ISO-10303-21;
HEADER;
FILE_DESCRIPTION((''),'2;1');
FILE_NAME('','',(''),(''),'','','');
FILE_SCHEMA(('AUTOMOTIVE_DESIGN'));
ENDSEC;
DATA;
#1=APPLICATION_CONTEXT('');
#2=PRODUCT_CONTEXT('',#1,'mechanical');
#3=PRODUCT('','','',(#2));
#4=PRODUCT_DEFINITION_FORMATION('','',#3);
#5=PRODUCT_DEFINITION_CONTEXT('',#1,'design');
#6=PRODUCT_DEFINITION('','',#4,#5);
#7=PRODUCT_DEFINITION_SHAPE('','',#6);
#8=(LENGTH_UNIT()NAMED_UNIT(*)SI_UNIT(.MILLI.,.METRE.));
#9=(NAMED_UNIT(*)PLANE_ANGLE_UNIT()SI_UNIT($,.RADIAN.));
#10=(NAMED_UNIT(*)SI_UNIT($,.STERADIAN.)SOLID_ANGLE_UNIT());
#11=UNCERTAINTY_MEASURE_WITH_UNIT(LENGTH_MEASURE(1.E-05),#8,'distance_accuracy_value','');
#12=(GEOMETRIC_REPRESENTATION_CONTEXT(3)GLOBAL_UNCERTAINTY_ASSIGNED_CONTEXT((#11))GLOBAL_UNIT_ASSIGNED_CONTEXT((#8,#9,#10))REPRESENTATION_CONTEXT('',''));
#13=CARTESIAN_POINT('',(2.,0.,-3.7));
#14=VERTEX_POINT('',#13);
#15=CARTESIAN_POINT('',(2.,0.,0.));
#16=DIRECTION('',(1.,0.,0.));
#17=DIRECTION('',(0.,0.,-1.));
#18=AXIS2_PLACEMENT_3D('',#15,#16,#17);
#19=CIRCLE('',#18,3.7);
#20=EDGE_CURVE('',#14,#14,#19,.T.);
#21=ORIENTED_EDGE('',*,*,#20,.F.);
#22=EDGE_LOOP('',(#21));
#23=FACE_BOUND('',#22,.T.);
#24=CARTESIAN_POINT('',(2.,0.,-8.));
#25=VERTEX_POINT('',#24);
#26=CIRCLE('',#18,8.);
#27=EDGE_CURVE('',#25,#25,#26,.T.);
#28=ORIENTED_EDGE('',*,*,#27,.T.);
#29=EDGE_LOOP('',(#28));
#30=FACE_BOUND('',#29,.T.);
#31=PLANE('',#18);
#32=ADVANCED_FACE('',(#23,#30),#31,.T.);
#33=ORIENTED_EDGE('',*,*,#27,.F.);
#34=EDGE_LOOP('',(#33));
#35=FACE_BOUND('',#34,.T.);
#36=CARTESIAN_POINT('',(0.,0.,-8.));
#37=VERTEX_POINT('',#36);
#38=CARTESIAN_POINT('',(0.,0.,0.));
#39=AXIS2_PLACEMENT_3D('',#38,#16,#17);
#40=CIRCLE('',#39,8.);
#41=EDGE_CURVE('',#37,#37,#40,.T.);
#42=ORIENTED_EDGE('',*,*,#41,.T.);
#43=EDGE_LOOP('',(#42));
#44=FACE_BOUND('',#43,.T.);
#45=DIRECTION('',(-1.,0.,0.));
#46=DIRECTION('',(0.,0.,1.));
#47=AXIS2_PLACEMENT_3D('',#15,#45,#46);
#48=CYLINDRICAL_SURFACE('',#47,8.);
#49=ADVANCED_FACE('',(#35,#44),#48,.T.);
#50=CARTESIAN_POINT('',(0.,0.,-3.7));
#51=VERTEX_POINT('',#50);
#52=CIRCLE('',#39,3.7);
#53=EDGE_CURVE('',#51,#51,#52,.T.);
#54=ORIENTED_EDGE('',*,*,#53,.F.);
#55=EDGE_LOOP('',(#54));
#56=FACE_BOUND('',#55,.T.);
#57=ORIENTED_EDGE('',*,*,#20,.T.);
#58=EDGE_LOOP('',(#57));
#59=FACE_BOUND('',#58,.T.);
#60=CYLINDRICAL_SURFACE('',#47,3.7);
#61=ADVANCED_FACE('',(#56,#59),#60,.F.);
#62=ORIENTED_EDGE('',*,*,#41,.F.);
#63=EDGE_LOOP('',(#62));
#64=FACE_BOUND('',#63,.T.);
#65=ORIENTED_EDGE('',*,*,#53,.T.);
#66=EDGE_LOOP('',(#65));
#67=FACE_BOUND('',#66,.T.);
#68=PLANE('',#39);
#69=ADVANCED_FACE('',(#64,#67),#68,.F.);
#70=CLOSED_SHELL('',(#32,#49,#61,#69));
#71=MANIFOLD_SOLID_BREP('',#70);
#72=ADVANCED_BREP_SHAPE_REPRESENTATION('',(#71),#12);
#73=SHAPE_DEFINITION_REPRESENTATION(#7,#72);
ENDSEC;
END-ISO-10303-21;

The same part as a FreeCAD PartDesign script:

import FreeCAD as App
import Part
import Sketcher
from FreeCAD import Vector

doc = App.newDocument("Part")
body = doc.addObject("PartDesign::Body", "Body")

sketch1 = body.newObject("Sketcher::SketchObject", "Sketch")
sketch1.AttachmentSupport = (doc.getObject("YZ_Plane"), [""])
sketch1.MapMode = "FlatFace"
sketch1.addGeometry(Part.Circle(Vector(0, 0, 0), Vector(0, 0, 1), 8), False)
sketch1.addGeometry(Part.Circle(Vector(0, 0, 0), Vector(0, 0, 1), 3.7), False)
sketch1.addConstraint(Sketcher.Constraint("Coincident", 0, 3, -1, 1))
sketch1.addConstraint(Sketcher.Constraint("Coincident", 1, 3, -1, 1))
sketch1.addConstraint(Sketcher.Constraint("Diameter", 0, 16.0))
sketch1.addConstraint(Sketcher.Constraint("Diameter", 1, 7.4))
pad1 = body.newObject("PartDesign::Pad", "Pad")
pad1.Profile = sketch1
pad1.Length = 2

doc.recompute()
